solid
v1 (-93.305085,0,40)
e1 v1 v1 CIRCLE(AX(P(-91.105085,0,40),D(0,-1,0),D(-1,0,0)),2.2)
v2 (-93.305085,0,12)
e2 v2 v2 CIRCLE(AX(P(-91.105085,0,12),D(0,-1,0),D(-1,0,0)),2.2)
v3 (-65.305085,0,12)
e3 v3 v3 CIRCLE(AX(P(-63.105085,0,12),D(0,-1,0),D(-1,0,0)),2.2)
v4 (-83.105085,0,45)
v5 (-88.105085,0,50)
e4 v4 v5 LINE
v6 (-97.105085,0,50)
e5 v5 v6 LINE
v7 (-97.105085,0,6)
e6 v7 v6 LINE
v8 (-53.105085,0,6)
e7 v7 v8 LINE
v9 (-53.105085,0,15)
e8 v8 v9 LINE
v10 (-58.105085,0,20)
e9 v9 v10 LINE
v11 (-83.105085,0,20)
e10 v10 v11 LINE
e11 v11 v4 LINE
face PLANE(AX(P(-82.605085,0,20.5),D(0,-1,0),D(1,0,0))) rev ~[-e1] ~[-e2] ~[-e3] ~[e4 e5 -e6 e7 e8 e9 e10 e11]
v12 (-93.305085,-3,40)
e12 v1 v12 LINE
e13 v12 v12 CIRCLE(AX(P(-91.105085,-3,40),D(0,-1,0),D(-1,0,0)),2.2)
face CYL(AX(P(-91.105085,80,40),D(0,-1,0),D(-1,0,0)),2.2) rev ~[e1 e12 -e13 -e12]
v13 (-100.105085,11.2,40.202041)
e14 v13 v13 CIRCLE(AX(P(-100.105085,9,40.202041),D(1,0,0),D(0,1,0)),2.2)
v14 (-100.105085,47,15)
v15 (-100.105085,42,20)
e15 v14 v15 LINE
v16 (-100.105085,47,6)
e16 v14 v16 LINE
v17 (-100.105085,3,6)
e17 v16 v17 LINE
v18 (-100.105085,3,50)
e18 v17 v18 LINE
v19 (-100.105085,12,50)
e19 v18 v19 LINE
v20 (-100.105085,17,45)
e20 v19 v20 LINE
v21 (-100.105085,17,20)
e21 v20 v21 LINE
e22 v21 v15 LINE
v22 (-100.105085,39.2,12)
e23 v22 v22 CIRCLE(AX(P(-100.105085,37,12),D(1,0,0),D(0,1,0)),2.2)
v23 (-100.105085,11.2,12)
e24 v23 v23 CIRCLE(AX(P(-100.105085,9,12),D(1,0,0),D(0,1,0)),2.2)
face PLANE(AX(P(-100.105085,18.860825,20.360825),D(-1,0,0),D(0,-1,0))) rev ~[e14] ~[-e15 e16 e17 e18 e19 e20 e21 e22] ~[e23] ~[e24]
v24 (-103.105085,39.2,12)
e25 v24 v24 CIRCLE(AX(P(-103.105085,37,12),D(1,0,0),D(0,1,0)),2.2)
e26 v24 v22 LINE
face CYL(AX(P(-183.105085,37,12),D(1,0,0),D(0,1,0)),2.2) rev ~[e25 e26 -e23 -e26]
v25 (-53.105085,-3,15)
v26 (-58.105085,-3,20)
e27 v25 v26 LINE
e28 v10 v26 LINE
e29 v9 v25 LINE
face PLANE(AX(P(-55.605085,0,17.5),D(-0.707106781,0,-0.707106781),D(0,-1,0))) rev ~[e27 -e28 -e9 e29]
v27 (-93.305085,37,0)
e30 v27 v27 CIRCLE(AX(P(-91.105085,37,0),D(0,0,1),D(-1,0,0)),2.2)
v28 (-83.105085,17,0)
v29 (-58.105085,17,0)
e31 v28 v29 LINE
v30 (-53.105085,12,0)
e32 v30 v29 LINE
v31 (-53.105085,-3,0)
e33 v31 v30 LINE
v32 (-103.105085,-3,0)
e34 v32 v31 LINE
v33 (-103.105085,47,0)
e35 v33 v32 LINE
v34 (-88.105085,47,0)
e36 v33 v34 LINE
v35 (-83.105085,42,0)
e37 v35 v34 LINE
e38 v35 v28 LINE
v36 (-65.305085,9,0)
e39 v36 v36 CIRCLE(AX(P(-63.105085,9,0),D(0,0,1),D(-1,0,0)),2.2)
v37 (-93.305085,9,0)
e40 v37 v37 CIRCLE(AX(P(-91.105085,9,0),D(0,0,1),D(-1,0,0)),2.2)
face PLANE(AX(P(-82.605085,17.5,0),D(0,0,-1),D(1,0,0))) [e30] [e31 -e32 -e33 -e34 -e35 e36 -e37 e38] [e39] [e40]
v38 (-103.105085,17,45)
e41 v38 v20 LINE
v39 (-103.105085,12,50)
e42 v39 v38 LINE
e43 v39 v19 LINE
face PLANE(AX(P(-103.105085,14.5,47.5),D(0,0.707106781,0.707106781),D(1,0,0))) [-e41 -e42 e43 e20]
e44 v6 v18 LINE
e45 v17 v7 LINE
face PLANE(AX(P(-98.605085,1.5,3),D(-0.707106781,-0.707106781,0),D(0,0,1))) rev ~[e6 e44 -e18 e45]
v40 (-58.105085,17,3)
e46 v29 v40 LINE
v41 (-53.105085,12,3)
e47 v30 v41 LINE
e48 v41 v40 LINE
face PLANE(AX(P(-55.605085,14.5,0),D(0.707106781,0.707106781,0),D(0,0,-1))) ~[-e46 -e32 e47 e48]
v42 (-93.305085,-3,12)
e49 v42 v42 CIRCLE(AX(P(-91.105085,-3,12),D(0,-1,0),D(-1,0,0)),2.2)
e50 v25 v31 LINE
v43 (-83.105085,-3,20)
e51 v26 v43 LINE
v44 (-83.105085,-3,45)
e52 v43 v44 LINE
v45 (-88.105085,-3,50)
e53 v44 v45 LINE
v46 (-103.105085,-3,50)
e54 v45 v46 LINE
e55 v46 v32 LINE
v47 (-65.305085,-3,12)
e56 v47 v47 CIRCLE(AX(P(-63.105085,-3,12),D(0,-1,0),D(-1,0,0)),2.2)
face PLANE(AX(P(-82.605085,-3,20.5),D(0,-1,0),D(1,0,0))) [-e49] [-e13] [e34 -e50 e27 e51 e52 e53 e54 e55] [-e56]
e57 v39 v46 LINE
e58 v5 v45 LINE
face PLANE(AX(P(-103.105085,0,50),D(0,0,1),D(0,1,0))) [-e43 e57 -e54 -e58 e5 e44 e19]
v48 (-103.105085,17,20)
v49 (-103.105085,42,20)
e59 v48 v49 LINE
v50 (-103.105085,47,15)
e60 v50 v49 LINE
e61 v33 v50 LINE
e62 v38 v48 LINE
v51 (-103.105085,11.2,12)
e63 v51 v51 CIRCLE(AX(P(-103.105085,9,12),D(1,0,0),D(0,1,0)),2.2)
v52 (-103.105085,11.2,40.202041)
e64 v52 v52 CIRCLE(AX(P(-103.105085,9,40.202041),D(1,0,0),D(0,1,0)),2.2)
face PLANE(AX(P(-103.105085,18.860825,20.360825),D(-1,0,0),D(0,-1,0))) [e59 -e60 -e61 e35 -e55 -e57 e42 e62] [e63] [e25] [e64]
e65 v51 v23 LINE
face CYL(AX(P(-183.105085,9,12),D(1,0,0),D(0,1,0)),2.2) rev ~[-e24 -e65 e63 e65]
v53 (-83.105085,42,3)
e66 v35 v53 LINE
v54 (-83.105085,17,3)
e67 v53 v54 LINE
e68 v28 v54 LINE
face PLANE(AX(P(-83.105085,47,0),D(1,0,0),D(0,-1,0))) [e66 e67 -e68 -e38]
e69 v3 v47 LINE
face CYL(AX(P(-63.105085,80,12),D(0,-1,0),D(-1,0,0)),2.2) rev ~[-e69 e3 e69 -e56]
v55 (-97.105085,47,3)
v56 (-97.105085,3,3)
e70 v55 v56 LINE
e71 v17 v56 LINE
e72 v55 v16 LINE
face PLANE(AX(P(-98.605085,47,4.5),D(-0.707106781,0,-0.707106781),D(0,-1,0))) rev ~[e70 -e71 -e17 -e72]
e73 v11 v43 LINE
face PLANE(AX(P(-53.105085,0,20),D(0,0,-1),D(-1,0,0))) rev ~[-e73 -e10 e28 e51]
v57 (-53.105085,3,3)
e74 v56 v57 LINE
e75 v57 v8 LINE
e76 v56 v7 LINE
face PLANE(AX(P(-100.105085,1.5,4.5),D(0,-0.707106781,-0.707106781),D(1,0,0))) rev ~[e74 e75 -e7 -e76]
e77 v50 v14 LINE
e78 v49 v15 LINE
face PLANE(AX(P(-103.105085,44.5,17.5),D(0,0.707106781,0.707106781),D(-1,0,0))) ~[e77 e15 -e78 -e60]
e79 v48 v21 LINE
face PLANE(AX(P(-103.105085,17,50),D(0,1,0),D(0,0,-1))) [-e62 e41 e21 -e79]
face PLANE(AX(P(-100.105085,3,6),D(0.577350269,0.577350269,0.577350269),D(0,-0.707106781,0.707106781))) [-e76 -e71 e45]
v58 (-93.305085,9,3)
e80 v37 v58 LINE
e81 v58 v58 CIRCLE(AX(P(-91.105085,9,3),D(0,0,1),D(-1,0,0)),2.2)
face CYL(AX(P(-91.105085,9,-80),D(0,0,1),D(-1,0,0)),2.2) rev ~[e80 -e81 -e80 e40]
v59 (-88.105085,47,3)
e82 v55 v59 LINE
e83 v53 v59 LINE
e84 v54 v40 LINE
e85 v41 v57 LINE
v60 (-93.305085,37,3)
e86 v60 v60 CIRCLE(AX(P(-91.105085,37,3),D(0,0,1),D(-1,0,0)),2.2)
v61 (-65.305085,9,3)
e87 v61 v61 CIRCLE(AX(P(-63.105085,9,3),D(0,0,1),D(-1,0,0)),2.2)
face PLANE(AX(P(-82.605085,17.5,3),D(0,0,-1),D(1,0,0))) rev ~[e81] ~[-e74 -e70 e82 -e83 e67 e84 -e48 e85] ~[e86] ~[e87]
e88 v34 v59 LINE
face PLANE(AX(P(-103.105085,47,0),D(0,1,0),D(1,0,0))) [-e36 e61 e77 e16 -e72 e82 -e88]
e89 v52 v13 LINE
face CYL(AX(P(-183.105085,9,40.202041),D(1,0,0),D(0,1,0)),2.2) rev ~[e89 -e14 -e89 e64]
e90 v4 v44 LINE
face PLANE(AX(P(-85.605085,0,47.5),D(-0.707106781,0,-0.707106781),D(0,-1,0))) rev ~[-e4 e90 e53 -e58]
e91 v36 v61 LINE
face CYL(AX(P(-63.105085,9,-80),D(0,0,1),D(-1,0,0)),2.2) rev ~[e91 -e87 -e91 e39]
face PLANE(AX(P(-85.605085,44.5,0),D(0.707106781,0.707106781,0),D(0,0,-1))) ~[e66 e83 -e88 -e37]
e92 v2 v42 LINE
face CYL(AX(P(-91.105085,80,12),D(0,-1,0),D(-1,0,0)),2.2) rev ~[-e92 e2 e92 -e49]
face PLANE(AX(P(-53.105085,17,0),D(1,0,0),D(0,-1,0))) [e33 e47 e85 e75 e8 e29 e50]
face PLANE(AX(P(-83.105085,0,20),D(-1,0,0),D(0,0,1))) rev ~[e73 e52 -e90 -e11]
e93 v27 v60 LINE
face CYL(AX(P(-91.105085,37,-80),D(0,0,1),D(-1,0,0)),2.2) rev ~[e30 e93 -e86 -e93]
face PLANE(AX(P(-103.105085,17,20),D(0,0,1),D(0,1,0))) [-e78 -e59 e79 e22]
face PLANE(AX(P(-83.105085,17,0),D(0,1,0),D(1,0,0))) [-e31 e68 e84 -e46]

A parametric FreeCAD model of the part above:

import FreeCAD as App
import Part
import Sketcher

V = App.Vector
Q = App.Units.Quantity


def edges_at(feature, points):
    """Names of the edges that pass closest to the given points."""
    edges = feature.Shape.Edges
    near = lambda p: min(range(len(edges)), key=lambda i: edges[i].distToShape(Part.Vertex(*p))[0])
    return sorted({f"Edge{near(p) + 1}" for p in points})


def add_polygon(sketch, points):
    """Adds a closed chain of lines whose ends are joined by coincident constraints."""
    first, n = sketch.GeometryCount, len(points)
    for a, b in zip(points, points[1:] + points[:1]):
        sketch.addGeometry(Part.LineSegment(App.Vector(*a, 0), App.Vector(*b, 0)), False)
    for i in range(n):
        sketch.addConstraint(Sketcher.Constraint("Coincident", first + i, 2, first + (i + 1) % n, 1))

doc = App.newDocument("Part")
body = doc.addObject("PartDesign::Body", "Body")

sketch1 = body.newObject("Sketcher::SketchObject", "Sketch")
sketch1.AttachmentSupport = (doc.getObject("XZ_Plane"), [""])
sketch1.MapMode = "FlatFace"
add_polygon(sketch1, [(-83, 50), (-103, 50), (-103, 0), (-53, 0), (-53, 20), (-83, 20)])
sketch1.addConstraint(Sketcher.Constraint("Horizontal", 0))
sketch1.addConstraint(Sketcher.Constraint("Vertical", 1))
sketch1.addConstraint(Sketcher.Constraint("Horizontal", 2))
sketch1.addConstraint(Sketcher.Constraint("Vertical", 3))
sketch1.addConstraint(Sketcher.Constraint("Horizontal", 4))
sketch1.addConstraint(Sketcher.Constraint("Vertical", 5))
sketch1.addConstraint(Sketcher.Constraint("PointOnObject", 1, 2, -1))
sketch1.addConstraint(Sketcher.Constraint("Equal", 2, 1))
sketch1.addConstraint(Sketcher.Constraint("Equal", 0, 3))
sketch1.addConstraint(Sketcher.Constraint("DistanceX", 0, 2, 0, 1, Q("20 mm")))
sketch1.addConstraint(Sketcher.Constraint("DistanceX", 2, 1, 2, 2, Q("50 mm")))
sketch1.addConstraint(Sketcher.Constraint("DistanceX", 0, 2, -1, 1, Q("103.105085 mm")))
pad1 = body.newObject("PartDesign::Pad", "Pad")
pad1.Profile = sketch1
pad1.Length = 3

sketch2 = body.newObject("Sketcher::SketchObject", "Sketch001")
sketch2.AttachmentSupport = (doc.getObject("YZ_Plane"), [""])
sketch2.MapMode = "FlatFace"
sketch2.AttachmentOffset = App.Placement(V(0, 0, -103.105085), App.Rotation())
add_polygon(sketch2, [(0, 0), (0, 50), (17, 50), (17, 20), (47, 20), (47, 0)])
sketch2.addConstraint(Sketcher.Constraint("Vertical", 0))
sketch2.addConstraint(Sketcher.Constraint("Horizontal", 1))
sketch2.addConstraint(Sketcher.Constraint("Vertical", 2))
sketch2.addConstraint(Sketcher.Constraint("Horizontal", 3))
sketch2.addConstraint(Sketcher.Constraint("Vertical", 4))
sketch2.addConstraint(Sketcher.Constraint("Horizontal", 5))
sketch2.addConstraint(Sketcher.Constraint("Coincident", 5, 2, -1, 1))
sketch2.addConstraint(Sketcher.Constraint("Equal", 3, 2))
sketch2.addConstraint(Sketcher.Constraint("DistanceX", 1, 1, 1, 2, Q("17 mm")))
sketch2.addConstraint(Sketcher.Constraint("DistanceX", 3, 1, 3, 2, Q("30 mm")))
sketch2.addConstraint(Sketcher.Constraint("DistanceY", 0, 1, 0, 2, Q("50 mm")))
pad2 = body.newObject("PartDesign::Pad", "Pad001")
pad2.Profile = sketch2
pad2.Length = 3

sketch3 = body.newObject("Sketcher::SketchObject", "Sketch002")
sketch3.AttachmentSupport = (doc.getObject("XY_Plane"), [""])
sketch3.MapMode = "FlatFace"
add_polygon(sketch3, [(-53, 17), (-53, -3), (-103, -3), (-103, 47), (-83, 47), (-83, 17)])
sketch3.addConstraint(Sketcher.Constraint("Vertical", 0))
sketch3.addConstraint(Sketcher.Constraint("Horizontal", 1))
sketch3.addConstraint(Sketcher.Constraint("Vertical", 2))
sketch3.addConstraint(Sketcher.Constraint("Horizontal", 3))
sketch3.addConstraint(Sketcher.Constraint("Vertical", 4))
sketch3.addConstraint(Sketcher.Constraint("Horizontal", 5))
sketch3.addConstraint(Sketcher.Constraint("Equal", 3, 0))
sketch3.addConstraint(Sketcher.Constraint("Equal", 1, 2))
sketch3.addConstraint(Sketcher.Constraint("DistanceX", 1, 2, 1, 1, Q("50 mm")))
sketch3.addConstraint(Sketcher.Constraint("DistanceX", 3, 1, 3, 2, Q("20 mm")))
sketch3.addConstraint(Sketcher.Constraint("DistanceY", 0, 2, -1, 1, Q("3 mm")))
sketch3.addConstraint(Sketcher.Constraint("DistanceX", 0, 2, -1, 1, Q("53.105085 mm")))
pad3 = body.newObject("PartDesign::Pad", "Pad002")
pad3.Profile = sketch3
pad3.Length = 3

sketch4 = body.newObject("Sketcher::SketchObject", "Sketch003")
sketch4.AttachmentSupport = (doc.getObject("XZ_Plane"), [""])
sketch4.MapMode = "FlatFace"
sketch4.addGeometry(Part.Circle(V(-63.1, 12, 0), V(0, 0, 1), 2.2), False)
sketch4.addGeometry(Part.Circle(V(-91.1, 40, 0), V(0, 0, 1), 2.2), False)
sketch4.addGeometry(Part.Circle(V(-91.1, 12, 0), V(0, 0, 1), 2.2), False)
sketch4.addConstraint(Sketcher.Constraint("Equal", 0, 1))
sketch4.addConstraint(Sketcher.Constraint("Equal", 1, 2))
sketch4.addConstraint(Sketcher.Constraint("Horizontal", 0, 3, 2, 3))
sketch4.addConstraint(Sketcher.Constraint("Vertical", 1, 3, 2, 3))
sketch4.addConstraint(Sketcher.Constraint("Diameter", 0, Q("4.4 mm")))
sketch4.addConstraint(Sketcher.Constraint("DistanceY", -1, 1, 0, 3, Q("12 mm")))
sketch4.addConstraint(Sketcher.Constraint("DistanceY", -1, 1, 1, 3, Q("40 mm")))
sketch4.addConstraint(Sketcher.Constraint("DistanceX", 1, 3, 0, 3, Q("28 mm")))
sketch4.addConstraint(Sketcher.Constraint("DistanceX", 0, 3, -1, 1, Q("63.105085 mm")))
doc.recompute()
hole = body.newObject("PartDesign::Hole", "Hole")
hole.Profile = sketch4
hole.ThreadType = "None"
hole.Diameter = 4.4
hole.DepthType = "Dimension"
hole.Depth = 80
hole.DrillPoint = "Angled"
hole.DrillPointAngle = 118
hole.Reversed = True

sketch5 = body.newObject("Sketcher::SketchObject", "Sketch004")
sketch5.AttachmentSupport = (doc.getObject("YZ_Plane"), [""])
sketch5.MapMode = "FlatFace"
sketch5.AttachmentOffset = App.Placement(V(0, 0, -103.105085), App.Rotation())
sketch5.addGeometry(Part.Circle(V(9, 40.2, 0), V(0, 0, 1), 2.2), False)
sketch5.addGeometry(Part.Circle(V(37, 12, 0), V(0, 0, 1), 2.2), False)
sketch5.addGeometry(Part.Circle(V(9, 12, 0), V(0, 0, 1), 2.2), False)
sketch5.addConstraint(Sketcher.Constraint("Equal", 0, 1))
sketch5.addConstraint(Sketcher.Constraint("Equal", 1, 2))
sketch5.addConstraint(Sketcher.Constraint("Horizontal", 1, 3, 2, 3))
sketch5.addConstraint(Sketcher.Constraint("Vertical", 0, 3, 2, 3))
sketch5.addConstraint(Sketcher.Constraint("Diameter", 0, Q("4.4 mm")))
sketch5.addConstraint(Sketcher.Constraint("DistanceX", -1, 1, 0, 3, Q("9 mm")))
sketch5.addConstraint(Sketcher.Constraint("DistanceX", -1, 1, 1, 3, Q("37 mm")))
sketch5.addConstraint(Sketcher.Constraint("DistanceY", -1, 1, 1, 3, Q("12 mm")))
sketch5.addConstraint(Sketcher.Constraint("DistanceY", -1, 1, 0, 3, Q("40.202041 mm")))
doc.recompute()
hole2 = body.newObject("PartDesign::Hole", "Hole001")
hole2.Profile = sketch5
hole2.ThreadType = "None"
hole2.Diameter = 4.4
hole2.DepthType = "Dimension"
hole2.Depth = 80
hole2.DrillPoint = "Angled"
hole2.DrillPointAngle = 118
hole2.Reversed = True

sketch6 = body.newObject("Sketcher::SketchObject", "Sketch005")
sketch6.AttachmentSupport = (doc.getObject("XY_Plane"), [""])
sketch6.MapMode = "FlatFace"
sketch6.addGeometry(Part.Circle(V(-91.1, 9, 0), V(0, 0, 1), 2.2), False)
sketch6.addGeometry(Part.Circle(V(-91.1, 37, 0), V(0, 0, 1), 2.2), False)
sketch6.addGeometry(Part.Circle(V(-63.1, 9, 0), V(0, 0, 1), 2.2), False)
sketch6.addConstraint(Sketcher.Constraint("Equal", 0, 1))
sketch6.addConstraint(Sketcher.Constraint("Equal", 1, 2))
sketch6.addConstraint(Sketcher.Constraint("Horizontal", 0, 3, 2, 3))
sketch6.addConstraint(Sketcher.Constraint("Vertical", 0, 3, 1, 3))
sketch6.addConstraint(Sketcher.Constraint("Diameter", 0, Q("4.4 mm")))
sketch6.addConstraint(Sketcher.Constraint("DistanceY", -1, 1, 0, 3, Q("9 mm")))
sketch6.addConstraint(Sketcher.Constraint("DistanceY", -1, 1, 1, 3, Q("37 mm")))
sketch6.addConstraint(Sketcher.Constraint("DistanceX", 0, 3, 2, 3, Q("28 mm")))
sketch6.addConstraint(Sketcher.Constraint("DistanceX", 0, 3, -1, 1, Q("91.105085 mm")))
doc.recompute()
hole3 = body.newObject("PartDesign::Hole", "Hole002")
hole3.Profile = sketch6
hole3.ThreadType = "None"
hole3.Diameter = 4.4
hole3.DepthType = "Dimension"
hole3.Depth = 80
hole3.DrillPoint = "Angled"
hole3.DrillPointAngle = 118
hole3.Reversed = True
doc.recompute()

chamfer = body.newObject("PartDesign::Chamfer", "Chamfer")
chamfer.Base = (hole3, edges_at(hole3, [(-76.605, 0, 3), (-100.105, 23.5, 3), (-100.105, 0, 26.5)]))
chamfer.Size = 3
doc.recompute()

chamfer2 = body.newObject("PartDesign::Chamfer", "Chamfer001")
chamfer2.Base = (chamfer, edges_at(chamfer, [
    (-53.105, -1.5, 20),
    (-53.105, 17, 1.5),
    (-83.105, 47, 1.5),
    (-101.605, 47, 20),
    (-83.105, -1.5, 50),
    (-101.605, 17, 50),
]))
chamfer2.Size = 5

doc.recompute()
